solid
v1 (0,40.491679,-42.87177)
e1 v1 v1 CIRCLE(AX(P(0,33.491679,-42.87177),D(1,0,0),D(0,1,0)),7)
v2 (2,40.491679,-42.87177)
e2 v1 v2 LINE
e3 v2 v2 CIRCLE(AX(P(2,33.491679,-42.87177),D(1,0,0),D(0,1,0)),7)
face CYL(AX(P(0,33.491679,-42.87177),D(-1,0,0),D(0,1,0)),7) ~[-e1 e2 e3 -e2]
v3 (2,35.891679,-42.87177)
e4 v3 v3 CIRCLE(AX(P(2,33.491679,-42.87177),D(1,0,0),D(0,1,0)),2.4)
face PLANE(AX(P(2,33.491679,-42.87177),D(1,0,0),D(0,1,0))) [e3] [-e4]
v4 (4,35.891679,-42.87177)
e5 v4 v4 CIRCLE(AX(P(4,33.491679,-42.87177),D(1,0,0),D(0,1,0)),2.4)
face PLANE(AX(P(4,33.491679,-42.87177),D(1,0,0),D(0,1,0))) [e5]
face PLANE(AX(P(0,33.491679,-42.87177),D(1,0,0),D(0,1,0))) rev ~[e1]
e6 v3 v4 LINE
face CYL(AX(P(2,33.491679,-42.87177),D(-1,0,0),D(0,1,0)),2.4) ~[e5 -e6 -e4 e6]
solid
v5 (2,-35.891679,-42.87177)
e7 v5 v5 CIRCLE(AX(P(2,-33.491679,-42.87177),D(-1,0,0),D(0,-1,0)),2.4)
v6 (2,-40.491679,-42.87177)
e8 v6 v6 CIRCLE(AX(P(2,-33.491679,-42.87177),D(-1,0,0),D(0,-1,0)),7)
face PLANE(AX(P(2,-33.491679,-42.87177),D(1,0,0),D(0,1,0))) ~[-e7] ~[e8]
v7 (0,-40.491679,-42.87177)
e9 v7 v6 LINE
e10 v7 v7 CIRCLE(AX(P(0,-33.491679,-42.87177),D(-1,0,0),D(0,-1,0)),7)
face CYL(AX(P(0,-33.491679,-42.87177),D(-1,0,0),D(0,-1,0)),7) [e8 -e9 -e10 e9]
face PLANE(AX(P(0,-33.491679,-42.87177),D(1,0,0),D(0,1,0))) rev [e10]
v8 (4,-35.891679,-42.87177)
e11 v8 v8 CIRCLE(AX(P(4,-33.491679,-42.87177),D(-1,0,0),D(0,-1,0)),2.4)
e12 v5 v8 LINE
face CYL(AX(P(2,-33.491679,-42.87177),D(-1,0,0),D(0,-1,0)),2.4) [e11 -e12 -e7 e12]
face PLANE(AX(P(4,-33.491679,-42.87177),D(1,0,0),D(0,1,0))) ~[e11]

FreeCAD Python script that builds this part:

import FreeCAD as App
import Part
import Sketcher

doc = App.newDocument("Part")
body = doc.addObject("PartDesign::Body", "Body")

sketch1 = doc.addObject("Sketcher::SketchObject", "Sketch")
body.addObject(sketch1)
sketch1.AttachmentSupport = (doc.YZ_Plane, [""])
sketch1.MapMode = "FlatFace"
sketch1.addGeometry(Part.Circle(App.Vector(33, -43, 0), App.Vector(0, 0, 1), 7), False)
sketch1.addConstraint([
    Sketcher.Constraint("Diameter", 0, 14.0),
    Sketcher.Constraint("DistanceX", -1, 1, 0, 3, 33.491679),
    Sketcher.Constraint("DistanceY", 0, 3, -1, 1, 42.87177),
])
pad1 = doc.addObject("PartDesign::Pad", "Pad")
body.addObject(pad1)
pad1.Profile = sketch1
pad1.Length = 2

sketch2 = doc.addObject("Sketcher::SketchObject", "Sketch001")
body.addObject(sketch2)
sketch2.AttachmentSupport = (doc.YZ_Plane, [""])
sketch2.MapMode = "FlatFace"
sketch2.AttachmentOffset = App.Placement(App.Vector(0, 0, 2), App.Rotation())
sketch2.addGeometry(Part.Circle(App.Vector(33.5, -42.9, 0), App.Vector(0, 0, 1), 2.4), False)
sketch2.addConstraint([
    Sketcher.Constraint("Diameter", 0, 4.8),
    Sketcher.Constraint("DistanceX", -1, 1, 0, 3, 33.491679),
    Sketcher.Constraint("DistanceY", 0, 3, -1, 1, 42.87177),
])
pad2 = doc.addObject("PartDesign::Pad", "Pad001")
body.addObject(pad2)
pad2.Profile = sketch2
pad2.Length = 2
body2 = doc.addObject("PartDesign::Body", "Body001")
doc.recompute()

mirroring = doc.addObject("Part::Mirroring", "Mirroring")
mirroring.Source = body
mirroring.Base = App.Vector(0, 0, 0)
mirroring.Normal = App.Vector(0, -1, 0)
body2.BaseFeature = mirroring
doc.recompute()
mirroring.Visibility = False

doc.recompute()
